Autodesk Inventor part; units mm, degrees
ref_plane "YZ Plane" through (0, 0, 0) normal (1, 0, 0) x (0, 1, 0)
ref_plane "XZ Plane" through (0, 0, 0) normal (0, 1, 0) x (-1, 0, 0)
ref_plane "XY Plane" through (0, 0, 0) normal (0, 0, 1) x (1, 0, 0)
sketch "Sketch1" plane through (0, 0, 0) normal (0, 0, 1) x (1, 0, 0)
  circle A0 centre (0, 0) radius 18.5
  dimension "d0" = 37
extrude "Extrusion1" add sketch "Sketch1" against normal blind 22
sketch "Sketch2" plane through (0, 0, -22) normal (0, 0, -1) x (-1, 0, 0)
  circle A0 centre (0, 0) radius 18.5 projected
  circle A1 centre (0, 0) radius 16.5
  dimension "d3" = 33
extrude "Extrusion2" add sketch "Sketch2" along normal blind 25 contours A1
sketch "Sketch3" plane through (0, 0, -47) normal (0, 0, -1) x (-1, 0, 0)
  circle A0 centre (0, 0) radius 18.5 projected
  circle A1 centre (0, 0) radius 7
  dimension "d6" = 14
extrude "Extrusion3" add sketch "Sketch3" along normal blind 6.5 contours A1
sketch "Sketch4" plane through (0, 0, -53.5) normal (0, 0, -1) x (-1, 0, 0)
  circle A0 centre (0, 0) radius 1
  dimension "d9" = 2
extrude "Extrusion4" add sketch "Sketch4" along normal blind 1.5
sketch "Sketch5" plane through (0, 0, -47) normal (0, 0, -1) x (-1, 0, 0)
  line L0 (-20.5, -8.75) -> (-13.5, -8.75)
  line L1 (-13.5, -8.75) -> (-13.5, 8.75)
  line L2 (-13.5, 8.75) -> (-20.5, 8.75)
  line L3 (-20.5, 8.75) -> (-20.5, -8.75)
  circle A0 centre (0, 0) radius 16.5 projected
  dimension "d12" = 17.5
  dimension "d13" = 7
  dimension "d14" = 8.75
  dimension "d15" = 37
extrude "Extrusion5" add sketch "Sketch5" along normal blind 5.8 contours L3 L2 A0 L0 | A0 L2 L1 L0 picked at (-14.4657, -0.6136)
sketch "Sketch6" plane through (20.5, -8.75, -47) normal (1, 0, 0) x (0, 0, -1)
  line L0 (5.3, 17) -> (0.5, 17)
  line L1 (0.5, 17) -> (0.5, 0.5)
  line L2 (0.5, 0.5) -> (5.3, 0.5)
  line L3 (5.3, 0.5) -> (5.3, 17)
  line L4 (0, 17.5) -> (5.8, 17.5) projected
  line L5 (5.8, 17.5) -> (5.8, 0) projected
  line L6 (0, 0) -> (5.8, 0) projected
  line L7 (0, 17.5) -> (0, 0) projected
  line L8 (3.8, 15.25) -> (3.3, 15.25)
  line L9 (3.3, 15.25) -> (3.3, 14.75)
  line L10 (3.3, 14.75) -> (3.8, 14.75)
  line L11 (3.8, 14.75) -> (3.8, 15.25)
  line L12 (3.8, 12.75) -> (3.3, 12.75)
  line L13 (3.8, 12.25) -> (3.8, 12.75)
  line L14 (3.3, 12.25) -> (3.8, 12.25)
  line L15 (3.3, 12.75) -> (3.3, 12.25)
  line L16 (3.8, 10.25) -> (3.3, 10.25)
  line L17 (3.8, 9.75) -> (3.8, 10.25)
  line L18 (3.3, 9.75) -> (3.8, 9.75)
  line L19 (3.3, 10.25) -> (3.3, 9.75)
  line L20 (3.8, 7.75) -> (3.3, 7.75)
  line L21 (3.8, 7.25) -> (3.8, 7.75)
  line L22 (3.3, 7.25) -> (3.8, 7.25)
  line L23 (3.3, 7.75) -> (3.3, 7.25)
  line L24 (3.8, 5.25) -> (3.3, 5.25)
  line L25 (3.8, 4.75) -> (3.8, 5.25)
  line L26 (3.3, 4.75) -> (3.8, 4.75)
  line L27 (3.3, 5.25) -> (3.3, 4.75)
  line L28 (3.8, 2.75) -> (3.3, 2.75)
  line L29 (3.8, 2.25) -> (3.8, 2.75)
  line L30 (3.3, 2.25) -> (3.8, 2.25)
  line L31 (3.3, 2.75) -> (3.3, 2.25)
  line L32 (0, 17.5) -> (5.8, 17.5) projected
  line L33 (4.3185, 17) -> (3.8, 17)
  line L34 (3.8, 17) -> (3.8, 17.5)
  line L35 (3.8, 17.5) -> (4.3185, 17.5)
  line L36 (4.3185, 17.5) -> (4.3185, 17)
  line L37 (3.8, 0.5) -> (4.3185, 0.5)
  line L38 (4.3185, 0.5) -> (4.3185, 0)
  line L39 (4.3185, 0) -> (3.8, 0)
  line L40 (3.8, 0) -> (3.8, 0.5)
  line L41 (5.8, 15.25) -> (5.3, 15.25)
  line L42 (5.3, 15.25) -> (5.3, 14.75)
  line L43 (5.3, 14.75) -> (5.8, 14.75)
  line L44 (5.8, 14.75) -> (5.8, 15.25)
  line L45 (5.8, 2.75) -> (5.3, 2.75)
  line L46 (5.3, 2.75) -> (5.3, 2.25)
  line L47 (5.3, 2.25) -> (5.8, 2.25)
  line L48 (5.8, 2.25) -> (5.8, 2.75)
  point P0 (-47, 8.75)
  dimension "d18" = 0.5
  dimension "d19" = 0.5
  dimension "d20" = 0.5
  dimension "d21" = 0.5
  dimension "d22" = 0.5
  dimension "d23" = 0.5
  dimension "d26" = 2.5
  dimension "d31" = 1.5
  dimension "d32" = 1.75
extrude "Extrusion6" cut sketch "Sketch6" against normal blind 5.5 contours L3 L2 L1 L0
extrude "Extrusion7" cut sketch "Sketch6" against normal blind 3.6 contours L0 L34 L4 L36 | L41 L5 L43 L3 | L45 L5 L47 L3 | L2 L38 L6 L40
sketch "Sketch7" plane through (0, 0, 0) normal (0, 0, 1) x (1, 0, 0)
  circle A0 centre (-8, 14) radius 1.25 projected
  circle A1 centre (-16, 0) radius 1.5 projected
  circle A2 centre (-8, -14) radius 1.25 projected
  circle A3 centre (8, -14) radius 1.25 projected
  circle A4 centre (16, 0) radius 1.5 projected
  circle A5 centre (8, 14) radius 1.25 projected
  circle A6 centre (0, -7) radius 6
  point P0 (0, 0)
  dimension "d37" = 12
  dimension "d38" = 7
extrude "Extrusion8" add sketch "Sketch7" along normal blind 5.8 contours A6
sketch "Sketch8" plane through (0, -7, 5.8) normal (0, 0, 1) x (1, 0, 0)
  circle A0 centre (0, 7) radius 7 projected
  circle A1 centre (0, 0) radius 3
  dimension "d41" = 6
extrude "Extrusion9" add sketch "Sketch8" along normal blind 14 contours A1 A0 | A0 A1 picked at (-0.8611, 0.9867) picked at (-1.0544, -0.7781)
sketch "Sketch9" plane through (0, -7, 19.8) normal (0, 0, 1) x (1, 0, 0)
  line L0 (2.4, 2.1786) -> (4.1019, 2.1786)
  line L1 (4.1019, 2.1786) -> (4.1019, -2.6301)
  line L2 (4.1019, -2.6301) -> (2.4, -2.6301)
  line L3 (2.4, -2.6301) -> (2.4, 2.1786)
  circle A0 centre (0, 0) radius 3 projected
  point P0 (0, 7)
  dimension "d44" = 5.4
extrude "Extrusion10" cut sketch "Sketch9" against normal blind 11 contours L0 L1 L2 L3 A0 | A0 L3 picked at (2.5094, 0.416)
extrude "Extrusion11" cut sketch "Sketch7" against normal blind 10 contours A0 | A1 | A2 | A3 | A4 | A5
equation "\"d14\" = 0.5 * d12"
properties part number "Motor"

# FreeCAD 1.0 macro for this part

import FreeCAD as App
import Part
import Sketcher
from FreeCAD import Vector


def add_polygon(sketch, points):
    """Adds a closed chain of lines whose ends are joined by coincident constraints."""
    first, n = sketch.GeometryCount, len(points)
    for a, b in zip(points, points[1:] + points[:1]):
        sketch.addGeometry(Part.LineSegment(App.Vector(*a, 0), App.Vector(*b, 0)), False)
    for i in range(n):
        sketch.addConstraint(Sketcher.Constraint("Coincident", first + i, 2, first + (i + 1) % n, 1))

doc = App.newDocument("Part")
body = doc.addObject("PartDesign::Body", "Body")

sketch1 = body.newObject("Sketcher::SketchObject", "Sketch")
sketch1.AttachmentSupport = (doc.getObject("XY_Plane"), [""])
sketch1.MapMode = "FlatFace"
sketch1.addGeometry(Part.Circle(Vector(0, 0, 0), Vector(0, 0, 1), 18.5), False)
sketch1.addConstraint(Sketcher.Constraint("Coincident", 0, 3, -1, 1))
sketch1.addConstraint(Sketcher.Constraint("Diameter", 0, 37.0))
pad1 = body.newObject("PartDesign::Pad", "Pad")
pad1.Profile = sketch1
pad1.Length = 22
pad1.Reversed = True

sketch2 = body.newObject("Sketcher::SketchObject", "Sketch001")
sketch2.AttachmentSupport = (doc.getObject("XY_Plane"), [""])
sketch2.MapMode = "FlatFace"
sketch2.AttachmentOffset = App.Placement(Vector(0, 0, -22), App.Rotation())
sketch2.addGeometry(Part.Circle(Vector(0, 0, 0), Vector(0, 0, 1), 16.5), False)
sketch2.addConstraint(Sketcher.Constraint("Coincident", 0, 3, -1, 1))
sketch2.addConstraint(Sketcher.Constraint("Diameter", 0, 33.0))
pad2 = body.newObject("PartDesign::Pad", "Pad001")
pad2.Profile = sketch2
pad2.Length = 25
pad2.Reversed = True

sketch3 = body.newObject("Sketcher::SketchObject", "Sketch002")
sketch3.AttachmentSupport = (doc.getObject("XY_Plane"), [""])
sketch3.MapMode = "FlatFace"
sketch3.AttachmentOffset = App.Placement(Vector(0, 0, -47), App.Rotation())
sketch3.addGeometry(Part.Circle(Vector(0, 0, 0), Vector(0, 0, 1), 7), False)
sketch3.addConstraint(Sketcher.Constraint("Coincident", 0, 3, -1, 1))
sketch3.addConstraint(Sketcher.Constraint("Diameter", 0, 14.0))
pad3 = body.newObject("PartDesign::Pad", "Pad002")
pad3.Profile = sketch3
pad3.Length = 6.5
pad3.Reversed = True

sketch4 = body.newObject("Sketcher::SketchObject", "Sketch003")
sketch4.AttachmentSupport = (doc.getObject("XY_Plane"), [""])
sketch4.MapMode = "FlatFace"
sketch4.AttachmentOffset = App.Placement(Vector(0, 0, -53.5), App.Rotation())
sketch4.addGeometry(Part.Circle(Vector(0, 0, 0), Vector(0, 0, 1), 1), False)
sketch4.addConstraint(Sketcher.Constraint("Coincident", 0, 3, -1, 1))
sketch4.addConstraint(Sketcher.Constraint("Diameter", 0, 2.0))
pad4 = body.newObject("PartDesign::Pad", "Pad003")
pad4.Profile = sketch4
pad4.Length = 1.5
pad4.Reversed = True

sketch5 = body.newObject("Sketcher::SketchObject", "Sketch004")
sketch5.AttachmentSupport = (doc.getObject("XY_Plane"), [""])
sketch5.MapMode = "FlatFace"
sketch5.AttachmentOffset = App.Placement(Vector(0, 0, -47), App.Rotation())
add_polygon(sketch5, [(20.5, 8.75), (20.5, -8.75), (13.5, -8.75), (13.5, 8.75)])
sketch5.addConstraint(Sketcher.Constraint("Vertical", 0))
sketch5.addConstraint(Sketcher.Constraint("Horizontal", 1))
sketch5.addConstraint(Sketcher.Constraint("Vertical", 2))
sketch5.addConstraint(Sketcher.Constraint("Horizontal", 3))
sketch5.addConstraint(Sketcher.Constraint("DistanceX", 1, 2, 1, 1, 7.0))
sketch5.addConstraint(Sketcher.Constraint("DistanceY", 0, 2, 0, 1, 17.5))
sketch5.addConstraint(Sketcher.Constraint("DistanceY", 0, 2, -1, 1, 8.75))
sketch5.addConstraint(Sketcher.Constraint("DistanceX", -1, 1, 0, 2, 20.5))
pad5 = body.newObject("PartDesign::Pad", "Pad004")
pad5.Profile = sketch5
pad5.Length = 5.8
pad5.Reversed = True

sketch6 = body.newObject("Sketcher::SketchObject", "Sketch005")
sketch6.AttachmentSupport = (doc.getObject("YZ_Plane"), [""])
sketch6.MapMode = "FlatFace"
sketch6.AttachmentOffset = App.Placement(Vector(0, 0, 20.5), App.Rotation())
add_polygon(sketch6, [(-8.25, -52.3), (8.25, -52.3), (8.25, -47.5), (-8.25, -47.5)])
add_polygon(sketch6, [(-6, -50.3), (-6, -50.8), (-6.5, -50.8), (-6.5, -50.3)])
add_polygon(sketch6, [(-3.5, -50.3), (-3.5, -50.8), (-4, -50.8), (-4, -50.3)])
add_polygon(sketch6, [(-1, -50.3), (-1, -50.8), (-1.5, -50.8), (-1.5, -50.3)])
add_polygon(sketch6, [(1.5, -50.3), (1.5, -50.8), (1, -50.8), (1, -50.3)])
add_polygon(sketch6, [(4, -50.3), (4, -50.8), (3.5, -50.8), (3.5, -50.3)])
add_polygon(sketch6, [(6.5, -50.3), (6.5, -50.8), (6, -50.8), (6, -50.3)])
sketch6.addConstraint(Sketcher.Constraint("Horizontal", 0))
sketch6.addConstraint(Sketcher.Constraint("Vertical", 1))
sketch6.addConstraint(Sketcher.Constraint("Horizontal", 2))
sketch6.addConstraint(Sketcher.Constraint("Vertical", 3))
sketch6.addConstraint(Sketcher.Constraint("Vertical", 4))
sketch6.addConstraint(Sketcher.Constraint("Horizontal", 5))
sketch6.addConstraint(Sketcher.Constraint("Vertical", 6))
sketch6.addConstraint(Sketcher.Constraint("Horizontal", 7))
sketch6.addConstraint(Sketcher.Constraint("Vertical", 8))
sketch6.addConstraint(Sketcher.Constraint("Horizontal", 9))
sketch6.addConstraint(Sketcher.Constraint("Vertical", 10))
sketch6.addConstraint(Sketcher.Constraint("Horizontal", 11))
sketch6.addConstraint(Sketcher.Constraint("Vertical", 12))
sketch6.addConstraint(Sketcher.Constraint("Horizontal", 13))
sketch6.addConstraint(Sketcher.Constraint("Vertical", 14))
sketch6.addConstraint(Sketcher.Constraint("Horizontal", 15))
sketch6.addConstraint(Sketcher.Constraint("Vertical", 16))
sketch6.addConstraint(Sketcher.Constraint("Horizontal", 17))
sketch6.addConstraint(Sketcher.Constraint("Vertical", 18))
sketch6.addConstraint(Sketcher.Constraint("Horizontal", 19))
sketch6.addConstraint(Sketcher.Constraint("Vertical", 20))
sketch6.addConstraint(Sketcher.Constraint("Horizontal", 21))
sketch6.addConstraint(Sketcher.Constraint("Vertical", 22))
sketch6.addConstraint(Sketcher.Constraint("Horizontal", 23))
sketch6.addConstraint(Sketcher.Constraint("Vertical", 24))
sketch6.addConstraint(Sketcher.Constraint("Horizontal", 25))
sketch6.addConstraint(Sketcher.Constraint("Vertical", 26))
sketch6.addConstraint(Sketcher.Constraint("Horizontal", 27))
sketch6.addConstraint(Sketcher.Constraint("Symmetric", 13, 2, 16, 2, -2))
sketch6.addConstraint(Sketcher.Constraint("Symmetric", 15, 2, 18, 2, -2))
sketch6.addConstraint(Sketcher.Constraint("Symmetric", 9, 2, 20, 2, -2))
sketch6.addConstraint(Sketcher.Constraint("Symmetric", 11, 2, 22, 2, -2))
sketch6.addConstraint(Sketcher.Constraint("Symmetric", 5, 2, 24, 2, -2))
sketch6.addConstraint(Sketcher.Constraint("Symmetric", 7, 2, 26, 2, -2))
sketch6.addConstraint(Sketcher.Constraint("Horizontal", 5, 2, 8, 2))
sketch6.addConstraint(Sketcher.Constraint("Horizontal", 7, 2, 10, 2))
sketch6.addConstraint(Sketcher.Constraint("Horizontal", 9, 2, 12, 2))
sketch6.addConstraint(Sketcher.Constraint("Horizontal", 11, 2, 14, 2))
sketch6.addConstraint(Sketcher.Constraint("Equal", 7, 9))
sketch6.addConstraint(Sketcher.Constraint("Equal", 11, 13))
sketch6.addConstraint(Sketcher.Constraint("Equal", 27, 4))
sketch6.addConstraint(Sketcher.Constraint("DistanceX", 5, 2, 5, 1, 0.5))
sketch6.addConstraint(Sketcher.Constraint("DistanceX", 13, 2, -1, 1, 1.5))
sketch6.addConstraint(Sketcher.Constraint("DistanceY", 3, 2, 4, 2, 1.5))
sketch6.addConstraint(Sketcher.Constraint("DistanceX", 4, 2, 8, 2, 2.5))
sketch6.addConstraint(Sketcher.Constraint("DistanceX", 8, 2, 12, 2, 2.5))
sketch6.addConstraint(Sketcher.Constraint("DistanceX", 3, 2, 5, 2, 1.75))
sketch6.addConstraint(Sketcher.Constraint("DistanceX", 24, 2, 0, 2, 1.75))
sketch6.addConstraint(Sketcher.Constraint("DistanceY", 1, 1, 1, 2, 4.8))
sketch6.addConstraint(Sketcher.Constraint("DistanceY", 0, 2, -1, 1, 52.3))
pocket1 = body.newObject("PartDesign::Pocket", "Pocket")
pocket1.Profile = sketch6
pocket1.Length = 5.5

sketch7 = body.newObject("Sketcher::SketchObject", "Sketch006")
sketch7.AttachmentSupport = (doc.getObject("YZ_Plane"), [""])
sketch7.MapMode = "FlatFace"
sketch7.AttachmentOffset = App.Placement(Vector(0, 0, 20.5), App.Rotation())
add_polygon(sketch7, [(8.25, -50.8), (8.25, -51.3185), (8.75, -51.3185), (8.75, -50.8)])
add_polygon(sketch7, [(6.5, -52.8), (6.5, -52.3), (6, -52.3), (6, -52.8)])
add_polygon(sketch7, [(-6, -52.8), (-6, -52.3), (-6.5, -52.3), (-6.5, -52.8)])
add_polygon(sketch7, [(-8.25, -51.3185), (-8.25, -50.8), (-8.75, -50.8), (-8.75, -51.3185)])
sketch7.addConstraint(Sketcher.Constraint("Vertical", 0))
sketch7.addConstraint(Sketcher.Constraint("Horizontal", 1))
sketch7.addConstraint(Sketcher.Constraint("Vertical", 2))
sketch7.addConstraint(Sketcher.Constraint("Horizontal", 3))
sketch7.addConstraint(Sketcher.Constraint("Vertical", 4))
sketch7.addConstraint(Sketcher.Constraint("Horizontal", 5))
sketch7.addConstraint(Sketcher.Constraint("Vertical", 6))
sketch7.addConstraint(Sketcher.Constraint("Horizontal", 7))
sketch7.addConstraint(Sketcher.Constraint("Vertical", 8))
sketch7.addConstraint(Sketcher.Constraint("Horizontal", 9))
sketch7.addConstraint(Sketcher.Constraint("Vertical", 10))
sketch7.addConstraint(Sketcher.Constraint("Horizontal", 11))
sketch7.addConstraint(Sketcher.Constraint("Vertical", 12))
sketch7.addConstraint(Sketcher.Constraint("Horizontal", 13))
sketch7.addConstraint(Sketcher.Constraint("Vertical", 14))
sketch7.addConstraint(Sketcher.Constraint("Horizontal", 15))
sketch7.addConstraint(Sketcher.Constraint("Symmetric", 5, 2, 8, 2, -2))
sketch7.addConstraint(Sketcher.Constraint("Symmetric", 7, 2, 10, 2, -2))
sketch7.addConstraint(Sketcher.Constraint("Symmetric", 3, 2, 12, 2, -2))
sketch7.addConstraint(Sketcher.Constraint("Symmetric", 1, 2, 14, 2, -2))
sketch7.addConstraint(Sketcher.Constraint("Equal", 3, 5))
sketch7.addConstraint(Sketcher.Constraint("Equal", 15, 4))
sketch7.addConstraint(Sketcher.Constraint("DistanceX", 1, 1, 1, 2, 0.5))
sketch7.addConstraint(Sketcher.Constraint("DistanceY", 4, 2, 3, 2, 1.5))
sketch7.addConstraint(Sketcher.Constraint("DistanceX", 4, 2, 0, 2, 1.75))
sketch7.addConstraint(Sketcher.Constraint("DistanceX", -1, 1, 5, 2, 6.0))
sketch7.addConstraint(Sketcher.Constraint("DistanceY", 2, 2, -1, 1, 50.8))
sketch7.addConstraint(Sketcher.Constraint("DistanceY", 0, 2, 0, 1, 0.5185))
pocket2 = body.newObject("PartDesign::Pocket", "Pocket001")
pocket2.Profile = sketch7
pocket2.Length = 3.6

sketch8 = body.newObject("Sketcher::SketchObject", "Sketch007")
sketch8.AttachmentSupport = (doc.getObject("XY_Plane"), [""])
sketch8.MapMode = "FlatFace"
sketch8.addGeometry(Part.Circle(Vector(0, -7, 0), Vector(0, 0, 1), 6), False)
sketch8.addConstraint(Sketcher.Constraint("PointOnObject", 0, 3, -2))
sketch8.addConstraint(Sketcher.Constraint("Diameter", 0, 12.0))
sketch8.addConstraint(Sketcher.Constraint("DistanceY", 0, 3, -1, 1, 7.0))
pad6 = body.newObject("PartDesign::Pad", "Pad005")
pad6.Profile = sketch8
pad6.Length = 5.8

sketch9 = body.newObject("Sketcher::SketchObject", "Sketch008")
sketch9.AttachmentSupport = (doc.getObject("XY_Plane"), [""])
sketch9.MapMode = "FlatFace"
sketch9.AttachmentOffset = App.Placement(Vector(0, 0, 5.8), App.Rotation())
sketch9.addGeometry(Part.Circle(Vector(0, -7, 0), Vector(0, 0, 1), 3), False)
sketch9.addConstraint(Sketcher.Constraint("PointOnObject", 0, 3, -2))
sketch9.addConstraint(Sketcher.Constraint("Diameter", 0, 6.0))
sketch9.addConstraint(Sketcher.Constraint("DistanceY", 0, 3, -1, 1, 7.0))
pad7 = body.newObject("PartDesign::Pad", "Pad006")
pad7.Profile = sketch9
pad7.Length = 14

sketch10 = body.newObject("Sketcher::SketchObject", "Sketch009")
sketch10.AttachmentSupport = (doc.getObject("XY_Plane"), [""])
sketch10.MapMode = "FlatFace"
sketch10.AttachmentOffset = App.Placement(Vector(0, 0, 19.8), App.Rotation())
add_polygon(sketch10, [(4.1019, -4.8214), (2.4, -4.8214), (2.4, -9.6301), (4.1019, -9.6301)])
sketch10.addConstraint(Sketcher.Constraint("Horizontal", 0))
sketch10.addConstraint(Sketcher.Constraint("Vertical", 1))
sketch10.addConstraint(Sketcher.Constraint("Horizontal", 2))
sketch10.addConstraint(Sketcher.Constraint("Vertical", 3))
sketch10.addConstraint(Sketcher.Constraint("DistanceX", -1, 1, 0, 2, 2.4))
sketch10.addConstraint(Sketcher.Constraint("DistanceX", 0, 2, 0, 1, 1.702))
sketch10.addConstraint(Sketcher.Constraint("DistanceY", 1, 2, -1, 1, 9.63))
sketch10.addConstraint(Sketcher.Constraint("DistanceY", 1, 2, 1, 1, 4.8087))
pocket3 = body.newObject("PartDesign::Pocket", "Pocket002")
pocket3.Profile = sketch10
pocket3.Length = 11

sketch11 = body.newObject("Sketcher::SketchObject", "Sketch010")
sketch11.AttachmentSupport = (doc.getObject("XY_Plane"), [""])
sketch11.MapMode = "FlatFace"
sketch11.addGeometry(Part.Circle(Vector(-8, 14, 0), Vector(0, 0, 1), 1.25), False)
sketch11.addGeometry(Part.Circle(Vector(-16, 0, 0), Vector(0, 0, 1), 1.5), False)
sketch11.addGeometry(Part.Circle(Vector(-8, -14, 0), Vector(0, 0, 1), 1.25), False)
sketch11.addGeometry(Part.Circle(Vector(8, -14, 0), Vector(0, 0, 1), 1.25), False)
sketch11.addGeometry(Part.Circle(Vector(16, 0, 0), Vector(0, 0, 1), 1.5), False)
sketch11.addGeometry(Part.Circle(Vector(8, 14, 0), Vector(0, 0, 1), 1.25), False)
sketch11.addConstraint(Sketcher.Constraint("Equal", 0, 2))
sketch11.addConstraint(Sketcher.Constraint("Equal", 2, 3))
sketch11.addConstraint(Sketcher.Constraint("Equal", 1, 4))
sketch11.addConstraint(Sketcher.Constraint("Equal", 3, 5))
sketch11.addConstraint(Sketcher.Constraint("Symmetric", 0, 3, 3, 3, -1, 1))
sketch11.addConstraint(Sketcher.Constraint("Symmetric", 1, 3, 4, 3, -1, 1))
sketch11.addConstraint(Sketcher.Constraint("Symmetric", 2, 3, 5, 3, -1, 1))
sketch11.addConstraint(Sketcher.Constraint("Symmetric", 2, 3, 3, 3, -2))
sketch11.addConstraint(Sketcher.Constraint("PointOnObject", 1, 3, -1))
sketch11.addConstraint(Sketcher.Constraint("Diameter", 1, 3.0))
sketch11.addConstraint(Sketcher.Constraint("Diameter", 0, 2.5))
sketch11.addConstraint(Sketcher.Constraint("DistanceX", 0, 3, -1, 1, 8.0))
sketch11.addConstraint(Sketcher.Constraint("DistanceY", -1, 1, 0, 3, 14.0))
sketch11.addConstraint(Sketcher.Constraint("DistanceX", 1, 3, -1, 1, 16.0))
pocket4 = body.newObject("PartDesign::Pocket", "Pocket003")
pocket4.Profile = sketch11
pocket4.Length = 10

doc.recompute()
